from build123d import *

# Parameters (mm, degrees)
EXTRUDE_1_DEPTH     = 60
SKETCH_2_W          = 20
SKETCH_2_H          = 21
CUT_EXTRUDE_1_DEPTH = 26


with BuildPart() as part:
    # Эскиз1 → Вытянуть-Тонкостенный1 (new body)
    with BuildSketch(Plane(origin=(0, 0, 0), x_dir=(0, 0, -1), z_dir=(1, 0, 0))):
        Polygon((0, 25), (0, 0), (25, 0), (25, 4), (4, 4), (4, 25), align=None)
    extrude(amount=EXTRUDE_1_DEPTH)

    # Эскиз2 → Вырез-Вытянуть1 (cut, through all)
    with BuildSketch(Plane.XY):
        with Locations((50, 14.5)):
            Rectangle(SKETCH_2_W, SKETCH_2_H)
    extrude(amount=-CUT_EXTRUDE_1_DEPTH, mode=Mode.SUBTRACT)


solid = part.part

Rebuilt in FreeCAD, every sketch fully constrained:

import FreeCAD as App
import Part
import Sketcher
Q = App.Units.Quantity

doc = App.newDocument("Part")
params = doc.addObject("Spreadsheet::Sheet", "Params")
for row, (alias, value) in enumerate([
    ("sketch1_width", "25 mm"),
    ("sketch1_width2", "4 mm"),
    ("pad1_length", "60 mm"),
    ("sketch2_width", "20 mm"),
    ("sketch2_height", "21 mm"),
], start=1):
    params.set(f"A{row}", alias)
    params.set(f"B{row}", "=" + value)
    params.setAlias(f"B{row}", alias)

body = doc.addObject("PartDesign::Body", "Body")

# Sketch on YZ plane
sketch1 = doc.addObject("Sketcher::SketchObject", "Sketch")
body.addObject(sketch1)
sketch1.AttachmentSupport = (doc.YZ_Plane, [""])
sketch1.MapMode = "FlatFace"
sketch1.addGeometry([
    Part.LineSegment(App.Vector(25, 0, 0), App.Vector(0, 0, 0)),  # 0
    Part.LineSegment(App.Vector(0, 0, 0), App.Vector(0, -25, 0)),  # 1
    Part.LineSegment(App.Vector(0, -25, 0), App.Vector(4, -25, 0)),  # 2
    Part.LineSegment(App.Vector(4, -25, 0), App.Vector(4, -4, 0)),  # 3
    Part.LineSegment(App.Vector(4, -4, 0), App.Vector(25, -4, 0)),  # 4
    Part.LineSegment(App.Vector(25, -4, 0), App.Vector(25, 0, 0)),  # 5
], False)
sketch1.addConstraint([
    Sketcher.Constraint("Coincident", 0, 2, 1, 1),
    Sketcher.Constraint("Coincident", 1, 2, 2, 1),
    Sketcher.Constraint("Coincident", 2, 2, 3, 1),
    Sketcher.Constraint("Coincident", 3, 2, 4, 1),
    Sketcher.Constraint("Coincident", 4, 2, 5, 1),
    Sketcher.Constraint("Coincident", 5, 2, 0, 1),
    Sketcher.Constraint("Horizontal", 0),
    Sketcher.Constraint("Vertical", 1),
    Sketcher.Constraint("Horizontal", 2),
    Sketcher.Constraint("Vertical", 3),
    Sketcher.Constraint("Horizontal", 4),
    Sketcher.Constraint("Vertical", 5),
    Sketcher.Constraint("Coincident", 0, 2, -1, 1),
    Sketcher.Constraint("Equal", 0, 1),
    Sketcher.Constraint("Equal", 4, 3),
    Sketcher.Constraint("DistanceX", 0, 2, 0, 1, Q("25 mm")),
    Sketcher.Constraint("DistanceX", 2, 1, 2, 2, Q("4 mm")),
])
sketch1.setExpression("Constraints[15]", "Params.sketch1_width")
sketch1.setExpression("Constraints[16]", "Params.sketch1_width2")
pad1 = doc.addObject("PartDesign::Pad", "Pad")
body.addObject(pad1)
pad1.Profile = sketch1
pad1.setExpression("Length", "Params.pad1_length")

# Sketch on XY plane
sketch2 = doc.addObject("Sketcher::SketchObject", "Sketch001")
body.addObject(sketch2)
sketch2.AttachmentSupport = (doc.XY_Plane, [""])
sketch2.MapMode = "FlatFace"
sketch2.addGeometry([
    Part.LineSegment(App.Vector(40, 25, 0), App.Vector(40, 4, 0)),
    Part.LineSegment(App.Vector(40, 4, 0), App.Vector(60, 4, 0)),
    Part.LineSegment(App.Vector(60, 4, 0), App.Vector(60, 25, 0)),
    Part.LineSegment(App.Vector(60, 25, 0), App.Vector(40, 25, 0)),
], False)
sketch2.addConstraint([
    Sketcher.Constraint("Coincident", 0, 2, 1, 1),
    Sketcher.Constraint("Coincident", 1, 2, 2, 1),
    Sketcher.Constraint("Coincident", 2, 2, 3, 1),
    Sketcher.Constraint("Coincident", 3, 2, 0, 1),
    Sketcher.Constraint("Vertical", 0),
    Sketcher.Constraint("Horizontal", 1),
    Sketcher.Constraint("Vertical", 2),
    Sketcher.Constraint("Horizontal", 3),
    Sketcher.Constraint("DistanceX", 1, 1, 1, 2, Q("20 mm")),
    Sketcher.Constraint("DistanceY", 0, 2, 0, 1, Q("21 mm")),
    Sketcher.Constraint("DistanceX", -1, 1, 0, 2, Q("40 mm")),
    Sketcher.Constraint("DistanceY", -1, 1, 0, 2, Q("4 mm")),
])
sketch2.setExpression("Constraints[8]", "Params.sketch2_width")
sketch2.setExpression("Constraints[9]", "Params.sketch2_height")
pocket1 = doc.addObject("PartDesign::Pocket", "Pocket")
body.addObject(pocket1)
pocket1.Profile = sketch2
pocket1.Type = "ThroughAll"

doc.recompute()
